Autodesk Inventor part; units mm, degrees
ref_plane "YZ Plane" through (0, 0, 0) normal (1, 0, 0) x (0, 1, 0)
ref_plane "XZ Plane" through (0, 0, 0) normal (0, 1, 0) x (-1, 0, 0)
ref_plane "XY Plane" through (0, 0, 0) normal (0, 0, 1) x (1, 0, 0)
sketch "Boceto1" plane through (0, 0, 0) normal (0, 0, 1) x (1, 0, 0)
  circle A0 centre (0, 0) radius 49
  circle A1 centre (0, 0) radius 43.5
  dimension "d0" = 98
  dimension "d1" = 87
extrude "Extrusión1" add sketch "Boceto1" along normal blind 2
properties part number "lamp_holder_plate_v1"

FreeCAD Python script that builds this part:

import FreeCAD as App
import Part
import Sketcher

V = App.Vector

doc = App.newDocument("Part")
body = doc.addObject("PartDesign::Body", "Body")

# Sketch on XY plane
sketch1 = doc.addObject("Sketcher::SketchObject", "Sketch")
body.addObject(sketch1)
sketch1.AttachmentSupport = (doc.XY_Plane, [""])
sketch1.MapMode = "FlatFace"
sketch1.addGeometry([
    Part.Circle(V(0, 0, 0), V(0, 0, 1), 49),
    Part.Circle(V(0, 0, 0), V(0, 0, 1), 44),
], False)
sketch1.addConstraint([
    Sketcher.Constraint("Coincident", 0, 3, -1, 1),
    Sketcher.Constraint("Coincident", 1, 3, -1, 1),
    Sketcher.Constraint("Diameter", 0, 98.0),
    Sketcher.Constraint("Diameter", 1, 87.0),
])
pad1 = doc.addObject("PartDesign::Pad", "Pad")
body.addObject(pad1)
pad1.Profile = sketch1
pad1.Length = 2

doc.recompute()
